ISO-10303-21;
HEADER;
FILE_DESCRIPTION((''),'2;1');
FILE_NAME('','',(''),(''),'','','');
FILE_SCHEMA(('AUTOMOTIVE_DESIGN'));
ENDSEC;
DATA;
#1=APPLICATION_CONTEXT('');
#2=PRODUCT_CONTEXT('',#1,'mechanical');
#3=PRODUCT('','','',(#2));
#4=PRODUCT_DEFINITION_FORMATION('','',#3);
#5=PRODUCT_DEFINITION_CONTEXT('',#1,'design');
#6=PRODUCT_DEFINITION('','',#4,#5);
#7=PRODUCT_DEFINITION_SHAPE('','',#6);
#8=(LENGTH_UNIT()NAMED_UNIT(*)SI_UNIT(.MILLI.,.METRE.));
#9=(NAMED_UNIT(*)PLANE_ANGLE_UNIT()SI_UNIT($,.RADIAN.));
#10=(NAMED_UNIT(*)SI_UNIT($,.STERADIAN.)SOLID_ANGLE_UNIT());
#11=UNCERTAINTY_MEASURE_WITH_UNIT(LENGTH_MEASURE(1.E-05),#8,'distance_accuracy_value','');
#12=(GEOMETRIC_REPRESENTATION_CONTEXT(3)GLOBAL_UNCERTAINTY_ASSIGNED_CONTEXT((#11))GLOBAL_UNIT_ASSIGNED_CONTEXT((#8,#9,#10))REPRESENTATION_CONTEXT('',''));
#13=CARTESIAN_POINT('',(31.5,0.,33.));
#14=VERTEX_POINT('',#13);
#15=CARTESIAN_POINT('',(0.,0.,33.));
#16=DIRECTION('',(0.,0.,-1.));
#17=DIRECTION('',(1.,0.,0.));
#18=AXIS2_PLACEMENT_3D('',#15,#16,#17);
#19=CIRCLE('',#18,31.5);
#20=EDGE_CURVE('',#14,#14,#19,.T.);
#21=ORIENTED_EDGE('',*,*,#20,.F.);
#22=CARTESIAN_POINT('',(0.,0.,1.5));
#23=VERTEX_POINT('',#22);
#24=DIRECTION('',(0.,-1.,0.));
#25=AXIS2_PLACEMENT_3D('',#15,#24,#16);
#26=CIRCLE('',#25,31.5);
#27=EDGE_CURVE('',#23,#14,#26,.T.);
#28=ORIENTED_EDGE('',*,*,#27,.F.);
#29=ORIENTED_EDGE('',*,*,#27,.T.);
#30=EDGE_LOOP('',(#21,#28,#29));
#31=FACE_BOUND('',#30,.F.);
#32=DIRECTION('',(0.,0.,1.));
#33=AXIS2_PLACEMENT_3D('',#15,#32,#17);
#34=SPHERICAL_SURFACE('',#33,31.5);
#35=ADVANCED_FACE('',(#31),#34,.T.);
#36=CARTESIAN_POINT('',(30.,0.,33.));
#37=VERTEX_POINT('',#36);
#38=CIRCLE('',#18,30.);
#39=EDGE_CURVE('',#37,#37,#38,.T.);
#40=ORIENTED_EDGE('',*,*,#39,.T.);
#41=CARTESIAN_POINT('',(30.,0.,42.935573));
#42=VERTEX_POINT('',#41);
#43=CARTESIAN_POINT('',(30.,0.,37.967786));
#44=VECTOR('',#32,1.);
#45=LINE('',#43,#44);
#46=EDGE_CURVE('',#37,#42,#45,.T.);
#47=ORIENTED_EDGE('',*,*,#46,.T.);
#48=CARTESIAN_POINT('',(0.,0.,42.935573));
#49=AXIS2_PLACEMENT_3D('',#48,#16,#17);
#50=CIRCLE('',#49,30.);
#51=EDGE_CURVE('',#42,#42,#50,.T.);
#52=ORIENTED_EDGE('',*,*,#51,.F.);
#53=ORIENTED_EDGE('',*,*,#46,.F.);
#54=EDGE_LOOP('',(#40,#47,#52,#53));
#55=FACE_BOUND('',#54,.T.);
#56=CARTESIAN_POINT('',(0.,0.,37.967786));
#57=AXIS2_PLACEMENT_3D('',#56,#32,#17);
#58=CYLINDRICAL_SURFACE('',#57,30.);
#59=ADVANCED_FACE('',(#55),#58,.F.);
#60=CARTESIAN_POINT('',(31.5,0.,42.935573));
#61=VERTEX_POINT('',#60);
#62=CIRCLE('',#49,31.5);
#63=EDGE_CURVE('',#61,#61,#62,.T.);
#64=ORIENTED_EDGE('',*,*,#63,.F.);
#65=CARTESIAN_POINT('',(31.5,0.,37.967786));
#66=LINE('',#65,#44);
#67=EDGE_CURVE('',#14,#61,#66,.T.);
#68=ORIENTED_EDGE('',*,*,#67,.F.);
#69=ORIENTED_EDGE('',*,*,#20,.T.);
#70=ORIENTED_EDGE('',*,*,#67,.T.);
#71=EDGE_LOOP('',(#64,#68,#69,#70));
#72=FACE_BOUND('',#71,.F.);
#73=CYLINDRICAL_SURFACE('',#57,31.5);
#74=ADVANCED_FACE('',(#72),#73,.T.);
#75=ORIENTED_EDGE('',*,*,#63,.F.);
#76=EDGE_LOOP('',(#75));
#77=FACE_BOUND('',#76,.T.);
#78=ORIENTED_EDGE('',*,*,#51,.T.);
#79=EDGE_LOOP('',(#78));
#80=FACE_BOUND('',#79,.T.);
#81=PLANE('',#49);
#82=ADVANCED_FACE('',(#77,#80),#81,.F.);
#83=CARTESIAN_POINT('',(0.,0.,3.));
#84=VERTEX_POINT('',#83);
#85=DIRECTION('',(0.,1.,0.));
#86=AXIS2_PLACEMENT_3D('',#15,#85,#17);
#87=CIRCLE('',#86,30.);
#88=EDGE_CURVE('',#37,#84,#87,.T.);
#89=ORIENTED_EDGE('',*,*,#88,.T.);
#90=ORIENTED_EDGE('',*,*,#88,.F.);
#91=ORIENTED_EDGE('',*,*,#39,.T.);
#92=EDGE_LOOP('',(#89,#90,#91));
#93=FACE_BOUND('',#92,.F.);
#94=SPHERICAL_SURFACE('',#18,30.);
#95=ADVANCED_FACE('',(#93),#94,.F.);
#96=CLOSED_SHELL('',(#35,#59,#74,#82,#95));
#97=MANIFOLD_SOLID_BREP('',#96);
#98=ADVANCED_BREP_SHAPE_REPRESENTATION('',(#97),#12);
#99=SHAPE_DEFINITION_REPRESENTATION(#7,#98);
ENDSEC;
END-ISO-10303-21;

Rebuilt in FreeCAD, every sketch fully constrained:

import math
import FreeCAD as App
import Part
import Sketcher

V = App.Vector
Q = App.Units.Quantity

doc = App.newDocument("Part")
params = doc.addObject("Spreadsheet::Sheet", "Params")
for row, (alias, value) in enumerate([
    ("sketch1_radius", "30 mm"),
    ("sketch1_radius2", "31.5 mm"),
    ("revolution_angle", "360 deg"),
], start=1):
    params.set(f"A{row}", alias)
    params.set(f"B{row}", "=" + value)
    params.setAlias(f"B{row}", alias)

body = doc.addObject("PartDesign::Body", "Body")

# Sketch on XZ plane
sketch1 = doc.addObject("Sketcher::SketchObject", "Sketch")
body.addObject(sketch1)
sketch1.AttachmentSupport = (doc.XZ_Plane, [""])
sketch1.MapMode = "FlatFace"
sketch1.addGeometry(Part.LineSegment(V(0, 3, 0), V(0, 1.5, 0)), False)
sketch1.addGeometry(Part.ArcOfCircle(Part.Circle(V(0, 33, 0), V(0, 0, 1), 31.5), math.radians(-90), math.radians(0)), False)
sketch1.addGeometry(Part.LineSegment(V(31.5, 33, 0), V(31.5, 42.9, 0)), False)
sketch1.addGeometry(Part.LineSegment(V(31.5, 42.9, 0), V(30, 42.9, 0)), False)
sketch1.addGeometry(Part.LineSegment(V(30, 42.9, 0), V(30, 33, 0)), False)
sketch1.addGeometry(Part.ArcOfCircle(Part.Circle(V(0, 33, 0), V(0, 0, 1), 30), math.radians(-90), math.radians(0)), False)
sketch1.addConstraint(Sketcher.Constraint("Coincident", 0, 2, 1, 1))
sketch1.addConstraint(Sketcher.Constraint("Tangent", 1, 2, 2, 1))
sketch1.addConstraint(Sketcher.Constraint("Coincident", 2, 2, 3, 1))
sketch1.addConstraint(Sketcher.Constraint("Coincident", 3, 2, 4, 1))
sketch1.addConstraint(Sketcher.Constraint("Tangent", 4, 2, 5, 2))
sketch1.addConstraint(Sketcher.Constraint("Coincident", 5, 1, 0, 1))
sketch1.addConstraint(Sketcher.Constraint("Vertical", 0))
sketch1.addConstraint(Sketcher.Constraint("Vertical", 2))
sketch1.addConstraint(Sketcher.Constraint("Horizontal", 3))
sketch1.addConstraint(Sketcher.Constraint("Vertical", 4))
sketch1.addConstraint(Sketcher.Constraint("Coincident", 5, 3, 1, 3))
sketch1.addConstraint(Sketcher.Constraint("PointOnObject", 1, 3, -2))
sketch1.addConstraint(Sketcher.Constraint("PointOnObject", 0, 2, -2))
sketch1.addConstraint(Sketcher.Constraint("Radius", 5, Q("30 mm")))
sketch1.addConstraint(Sketcher.Constraint("Radius", 1, Q("31.5 mm")))
sketch1.addConstraint(Sketcher.Constraint("DistanceY", -1, 1, 1, 3, Q("33 mm")))
sketch1.addConstraint(Sketcher.Constraint("DistanceY", 2, 1, 2, 2, Q("9.935573 mm")))
sketch1.setExpression("Constraints[13]", "Params.sketch1_radius")
sketch1.setExpression("Constraints[14]", "Params.sketch1_radius2")
revolution = doc.addObject("PartDesign::Revolution", "Revolution")
body.addObject(revolution)
revolution.Profile = sketch1
revolution.ReferenceAxis = (sketch1, ["V_Axis"])
revolution.setExpression("Angle", "Params.revolution_angle")

doc.recompute()
